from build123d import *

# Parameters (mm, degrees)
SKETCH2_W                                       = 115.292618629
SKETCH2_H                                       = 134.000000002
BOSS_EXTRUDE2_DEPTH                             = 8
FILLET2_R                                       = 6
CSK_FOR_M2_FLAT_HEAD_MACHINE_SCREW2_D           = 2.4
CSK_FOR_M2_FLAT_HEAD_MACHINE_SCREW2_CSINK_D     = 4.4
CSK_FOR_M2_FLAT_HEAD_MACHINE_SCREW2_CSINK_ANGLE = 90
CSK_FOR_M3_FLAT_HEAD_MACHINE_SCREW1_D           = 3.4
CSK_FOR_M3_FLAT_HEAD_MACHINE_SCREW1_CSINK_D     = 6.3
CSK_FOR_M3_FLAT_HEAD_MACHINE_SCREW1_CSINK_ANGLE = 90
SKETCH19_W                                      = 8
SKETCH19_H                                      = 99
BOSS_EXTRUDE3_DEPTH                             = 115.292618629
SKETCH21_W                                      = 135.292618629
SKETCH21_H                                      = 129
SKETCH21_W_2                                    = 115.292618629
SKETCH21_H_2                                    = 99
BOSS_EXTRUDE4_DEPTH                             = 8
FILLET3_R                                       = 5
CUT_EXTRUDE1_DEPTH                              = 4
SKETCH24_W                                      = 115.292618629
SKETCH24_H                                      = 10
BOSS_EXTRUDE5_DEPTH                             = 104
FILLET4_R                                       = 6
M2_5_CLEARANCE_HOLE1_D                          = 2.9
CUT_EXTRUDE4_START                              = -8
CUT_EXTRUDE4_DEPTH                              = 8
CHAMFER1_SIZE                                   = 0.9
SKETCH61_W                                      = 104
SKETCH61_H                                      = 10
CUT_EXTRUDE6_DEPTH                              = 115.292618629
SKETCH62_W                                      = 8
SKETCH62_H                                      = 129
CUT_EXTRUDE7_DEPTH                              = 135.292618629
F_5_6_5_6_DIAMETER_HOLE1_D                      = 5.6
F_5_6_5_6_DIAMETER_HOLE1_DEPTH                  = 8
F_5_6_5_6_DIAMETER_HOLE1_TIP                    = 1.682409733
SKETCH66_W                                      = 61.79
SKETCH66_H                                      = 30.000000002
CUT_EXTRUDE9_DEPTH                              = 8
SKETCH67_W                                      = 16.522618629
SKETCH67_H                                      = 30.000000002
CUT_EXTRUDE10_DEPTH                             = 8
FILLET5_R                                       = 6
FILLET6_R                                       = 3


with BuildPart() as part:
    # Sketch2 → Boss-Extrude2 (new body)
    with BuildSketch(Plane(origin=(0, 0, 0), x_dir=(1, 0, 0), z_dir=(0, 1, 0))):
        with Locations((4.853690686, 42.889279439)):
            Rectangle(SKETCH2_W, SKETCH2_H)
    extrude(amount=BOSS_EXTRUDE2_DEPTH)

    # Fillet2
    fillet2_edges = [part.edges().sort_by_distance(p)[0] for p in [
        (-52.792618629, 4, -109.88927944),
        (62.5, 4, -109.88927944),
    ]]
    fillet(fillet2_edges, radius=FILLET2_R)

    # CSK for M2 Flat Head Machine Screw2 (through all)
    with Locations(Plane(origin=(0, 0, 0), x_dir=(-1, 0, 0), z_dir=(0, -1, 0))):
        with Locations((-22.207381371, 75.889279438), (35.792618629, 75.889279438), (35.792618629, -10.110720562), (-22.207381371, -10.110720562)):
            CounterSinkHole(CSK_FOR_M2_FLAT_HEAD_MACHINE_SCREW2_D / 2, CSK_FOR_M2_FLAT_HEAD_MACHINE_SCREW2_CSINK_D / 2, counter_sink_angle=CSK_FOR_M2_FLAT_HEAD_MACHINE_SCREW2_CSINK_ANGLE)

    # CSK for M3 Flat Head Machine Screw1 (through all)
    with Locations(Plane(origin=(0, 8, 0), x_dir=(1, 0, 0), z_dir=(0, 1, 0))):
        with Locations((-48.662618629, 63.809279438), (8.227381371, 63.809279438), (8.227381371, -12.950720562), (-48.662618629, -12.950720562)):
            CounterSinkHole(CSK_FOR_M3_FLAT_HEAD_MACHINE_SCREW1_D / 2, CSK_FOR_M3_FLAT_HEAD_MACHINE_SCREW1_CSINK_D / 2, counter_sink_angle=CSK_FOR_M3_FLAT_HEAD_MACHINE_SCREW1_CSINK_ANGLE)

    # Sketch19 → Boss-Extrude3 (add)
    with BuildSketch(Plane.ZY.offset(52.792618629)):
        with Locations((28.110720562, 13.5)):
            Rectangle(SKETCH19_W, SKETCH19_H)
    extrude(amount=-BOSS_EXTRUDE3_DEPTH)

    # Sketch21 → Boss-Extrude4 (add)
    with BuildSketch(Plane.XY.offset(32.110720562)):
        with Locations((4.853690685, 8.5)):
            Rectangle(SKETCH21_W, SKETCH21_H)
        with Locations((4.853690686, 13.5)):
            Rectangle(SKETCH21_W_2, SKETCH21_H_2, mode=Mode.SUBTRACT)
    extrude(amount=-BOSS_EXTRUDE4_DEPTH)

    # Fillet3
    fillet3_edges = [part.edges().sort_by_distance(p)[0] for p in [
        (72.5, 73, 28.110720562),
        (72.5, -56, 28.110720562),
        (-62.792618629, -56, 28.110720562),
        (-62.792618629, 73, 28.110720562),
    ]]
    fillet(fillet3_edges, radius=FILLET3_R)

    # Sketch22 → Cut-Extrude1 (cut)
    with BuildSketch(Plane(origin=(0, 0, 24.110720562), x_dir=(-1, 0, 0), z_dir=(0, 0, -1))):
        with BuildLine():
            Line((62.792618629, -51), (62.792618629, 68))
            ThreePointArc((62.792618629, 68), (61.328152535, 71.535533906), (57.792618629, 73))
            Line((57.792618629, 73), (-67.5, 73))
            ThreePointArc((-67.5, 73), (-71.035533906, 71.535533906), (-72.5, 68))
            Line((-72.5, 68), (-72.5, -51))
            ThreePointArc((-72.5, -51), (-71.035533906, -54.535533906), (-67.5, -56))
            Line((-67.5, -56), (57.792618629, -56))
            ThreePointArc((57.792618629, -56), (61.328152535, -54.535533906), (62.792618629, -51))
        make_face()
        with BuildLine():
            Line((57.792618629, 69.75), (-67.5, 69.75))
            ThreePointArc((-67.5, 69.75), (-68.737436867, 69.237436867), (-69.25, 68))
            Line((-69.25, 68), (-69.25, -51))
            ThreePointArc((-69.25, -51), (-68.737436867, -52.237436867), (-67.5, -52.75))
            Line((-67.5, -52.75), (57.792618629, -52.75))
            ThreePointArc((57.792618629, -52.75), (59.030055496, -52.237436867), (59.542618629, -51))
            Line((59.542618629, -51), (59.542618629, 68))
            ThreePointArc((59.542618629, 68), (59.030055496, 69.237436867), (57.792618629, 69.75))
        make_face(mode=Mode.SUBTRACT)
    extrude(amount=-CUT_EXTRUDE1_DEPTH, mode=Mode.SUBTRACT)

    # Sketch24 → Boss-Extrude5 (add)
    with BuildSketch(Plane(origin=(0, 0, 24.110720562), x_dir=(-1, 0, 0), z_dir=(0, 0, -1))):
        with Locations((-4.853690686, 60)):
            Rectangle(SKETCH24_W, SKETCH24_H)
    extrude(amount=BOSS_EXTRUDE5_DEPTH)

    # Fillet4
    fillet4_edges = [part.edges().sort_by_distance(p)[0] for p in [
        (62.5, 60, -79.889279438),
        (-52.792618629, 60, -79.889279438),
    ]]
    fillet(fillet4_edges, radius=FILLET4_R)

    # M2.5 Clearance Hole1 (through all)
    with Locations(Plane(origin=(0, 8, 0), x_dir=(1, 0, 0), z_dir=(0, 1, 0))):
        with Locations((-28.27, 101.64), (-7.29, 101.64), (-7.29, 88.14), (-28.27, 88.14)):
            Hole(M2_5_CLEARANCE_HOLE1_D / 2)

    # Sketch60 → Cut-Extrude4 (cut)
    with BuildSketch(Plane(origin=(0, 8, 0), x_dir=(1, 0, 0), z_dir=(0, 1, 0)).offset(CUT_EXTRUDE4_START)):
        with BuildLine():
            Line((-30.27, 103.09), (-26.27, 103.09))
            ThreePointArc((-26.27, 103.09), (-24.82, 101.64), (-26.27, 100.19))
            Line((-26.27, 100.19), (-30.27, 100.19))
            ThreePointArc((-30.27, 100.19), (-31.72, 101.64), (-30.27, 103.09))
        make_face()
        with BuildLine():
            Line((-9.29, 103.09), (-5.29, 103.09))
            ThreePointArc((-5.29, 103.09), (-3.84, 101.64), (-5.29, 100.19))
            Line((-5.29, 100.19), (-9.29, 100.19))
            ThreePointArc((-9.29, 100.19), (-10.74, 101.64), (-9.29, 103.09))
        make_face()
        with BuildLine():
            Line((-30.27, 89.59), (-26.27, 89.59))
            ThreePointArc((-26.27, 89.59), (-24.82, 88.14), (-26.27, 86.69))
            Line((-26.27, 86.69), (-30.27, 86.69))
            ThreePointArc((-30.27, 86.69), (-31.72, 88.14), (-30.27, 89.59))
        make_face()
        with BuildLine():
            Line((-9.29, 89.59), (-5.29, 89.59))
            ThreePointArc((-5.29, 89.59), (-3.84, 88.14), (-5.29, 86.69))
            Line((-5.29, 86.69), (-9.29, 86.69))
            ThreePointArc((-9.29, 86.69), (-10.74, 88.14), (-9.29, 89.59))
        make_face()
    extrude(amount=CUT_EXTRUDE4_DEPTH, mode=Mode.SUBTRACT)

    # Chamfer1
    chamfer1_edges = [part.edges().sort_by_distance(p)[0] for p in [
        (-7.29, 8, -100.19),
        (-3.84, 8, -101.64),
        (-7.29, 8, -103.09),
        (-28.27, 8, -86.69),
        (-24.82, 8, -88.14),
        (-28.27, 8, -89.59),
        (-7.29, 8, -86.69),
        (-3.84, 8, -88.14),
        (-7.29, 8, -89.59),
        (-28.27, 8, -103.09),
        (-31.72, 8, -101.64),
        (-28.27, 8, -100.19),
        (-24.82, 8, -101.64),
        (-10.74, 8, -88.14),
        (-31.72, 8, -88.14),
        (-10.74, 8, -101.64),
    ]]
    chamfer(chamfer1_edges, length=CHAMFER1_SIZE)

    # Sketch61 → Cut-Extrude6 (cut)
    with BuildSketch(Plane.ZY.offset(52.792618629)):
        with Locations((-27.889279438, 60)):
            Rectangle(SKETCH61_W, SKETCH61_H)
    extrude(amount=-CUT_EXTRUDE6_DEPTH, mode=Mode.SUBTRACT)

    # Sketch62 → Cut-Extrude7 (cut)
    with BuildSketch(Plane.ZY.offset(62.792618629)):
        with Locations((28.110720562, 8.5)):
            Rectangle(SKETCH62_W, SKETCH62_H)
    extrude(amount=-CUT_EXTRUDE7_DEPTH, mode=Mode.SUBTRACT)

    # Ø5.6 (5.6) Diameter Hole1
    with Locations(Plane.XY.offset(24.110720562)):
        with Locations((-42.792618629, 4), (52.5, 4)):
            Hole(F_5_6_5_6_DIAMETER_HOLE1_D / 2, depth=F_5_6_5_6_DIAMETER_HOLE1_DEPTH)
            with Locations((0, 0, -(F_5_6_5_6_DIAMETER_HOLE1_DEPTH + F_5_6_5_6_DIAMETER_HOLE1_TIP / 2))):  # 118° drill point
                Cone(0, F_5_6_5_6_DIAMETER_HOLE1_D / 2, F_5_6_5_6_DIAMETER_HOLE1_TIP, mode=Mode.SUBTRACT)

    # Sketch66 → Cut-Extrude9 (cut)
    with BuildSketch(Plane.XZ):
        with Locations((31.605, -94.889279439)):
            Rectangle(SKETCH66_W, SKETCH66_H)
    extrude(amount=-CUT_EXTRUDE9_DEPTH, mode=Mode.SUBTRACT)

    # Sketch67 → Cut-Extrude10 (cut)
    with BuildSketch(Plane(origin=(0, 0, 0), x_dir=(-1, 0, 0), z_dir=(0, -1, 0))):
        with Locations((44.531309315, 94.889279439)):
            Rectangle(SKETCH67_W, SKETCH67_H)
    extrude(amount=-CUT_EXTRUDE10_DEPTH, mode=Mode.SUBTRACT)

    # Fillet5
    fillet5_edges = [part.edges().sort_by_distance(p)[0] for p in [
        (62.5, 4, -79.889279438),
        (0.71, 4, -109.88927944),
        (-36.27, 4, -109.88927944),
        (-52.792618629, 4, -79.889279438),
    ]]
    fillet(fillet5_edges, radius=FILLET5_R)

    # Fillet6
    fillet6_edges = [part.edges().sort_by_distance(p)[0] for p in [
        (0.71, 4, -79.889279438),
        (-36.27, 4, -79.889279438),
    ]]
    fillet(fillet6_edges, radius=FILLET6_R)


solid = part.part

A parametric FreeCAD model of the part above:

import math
import FreeCAD as App
import Part
import Sketcher

V = App.Vector


def edges_at(feature, points):
    """Names of the edges that pass closest to the given points."""
    edges = feature.Shape.Edges
    near = lambda p: min(range(len(edges)), key=lambda i: edges[i].distToShape(Part.Vertex(*p))[0])
    return sorted({f"Edge{near(p) + 1}" for p in points})

doc = App.newDocument("Part")
params = doc.addObject("Spreadsheet::Sheet", "Params")
for row, (alias, value) in enumerate([
    ("sketch1_height", "134 mm"),
    ("pad1_length", "8 mm"),
    ("fillet_radius", "6 mm"),
    ("sketch2_diameter", "2.4 mm"),
    ("hole_diameter", "2.4 mm"),
    ("hole_csink_diameter", "4.4 mm"),
    ("sketch3_diameter", "3.4 mm"),
    ("hole2_diameter", "3.4 mm"),
    ("hole2_csink_diameter", "6.3 mm"),
    ("sketch4_width", "99 mm"),
    ("sketch4_height", "8 mm"),
    ("pad2_length", "115.292619 mm"),
    ("sketch5_height", "129 mm"),
    ("sketch5_height2", "99 mm"),
    ("pad3_length", "8 mm"),
    ("fillet2_radius", "5 mm"),
    ("sketch6_radius", "5 mm"),
    ("sketch6_height", "119 mm"),
    ("sketch6_radius2", "1.75 mm"),
    ("pocket1_length", "4 mm"),
    ("sketch7_height", "10 mm"),
    ("pad4_length", "104 mm"),
    ("fillet3_radius", "6 mm"),
    ("sketch8_diameter", "2.9 mm"),
    ("hole3_diameter", "2.9 mm"),
    ("sketch9_width", "4 mm"),
    ("sketch9_radius", "1.45 mm"),
    ("pocket2_length", "8 mm"),
    ("chamfer_size", "0.9 mm"),
    ("sketch10_width", "10 mm"),
    ("sketch10_height", "104 mm"),
    ("pocket3_length", "115.292619 mm"),
    ("sketch11_width", "129 mm"),
    ("sketch11_height", "8 mm"),
    ("pocket4_length", "135.292619 mm"),
    ("sketch12_diameter", "5.6 mm"),
    ("hole4_diameter", "5.6 mm"),
    ("hole4_depth", "8 mm"),
    ("sketch13_height", "30 mm"),
    ("sketch13_width", "61.79 mm"),
    ("pocket5_length", "8 mm"),
    ("sketch14_height", "30 mm"),
    ("pocket6_length", "8 mm"),
    ("fillet4_radius", "6 mm"),
    ("fillet5_radius", "3 mm"),
], start=1):
    params.set(f"A{row}", alias)
    params.set(f"B{row}", "=" + value)
    params.setAlias(f"B{row}", alias)

body = doc.addObject("PartDesign::Body", "Body")

# Sketch on XZ plane
sketch1 = doc.addObject("Sketcher::SketchObject", "Sketch")
body.addObject(sketch1)
sketch1.AttachmentSupport = (doc.XZ_Plane, [""])
sketch1.MapMode = "FlatFace"
sketch1.addGeometry(Part.LineSegment(V(-52.792619, -109.889279, 0), V(-52.792619, 24.110721, 0)), False)
sketch1.addGeometry(Part.LineSegment(V(-52.792619, 24.110721, 0), V(62.5, 24.110721, 0)), False)
sketch1.addGeometry(Part.LineSegment(V(62.5, 24.110721, 0), V(62.5, -109.889279, 0)), False)
sketch1.addGeometry(Part.LineSegment(V(62.5, -109.889279, 0), V(-52.792619, -109.889279, 0)), False)
sketch1.addConstraint(Sketcher.Constraint("Coincident", 0, 2, 1, 1))
sketch1.addConstraint(Sketcher.Constraint("Coincident", 1, 2, 2, 1))
sketch1.addConstraint(Sketcher.Constraint("Coincident", 2, 2, 3, 1))
sketch1.addConstraint(Sketcher.Constraint("Coincident", 3, 2, 0, 1))
sketch1.addConstraint(Sketcher.Constraint("Vertical", 0))
sketch1.addConstraint(Sketcher.Constraint("Horizontal", 1))
sketch1.addConstraint(Sketcher.Constraint("Vertical", 2))
sketch1.addConstraint(Sketcher.Constraint("Horizontal", 3))
sketch1.addConstraint(Sketcher.Constraint("DistanceY", 0, 1, 0, 2, 134.0))
sketch1.addConstraint(Sketcher.Constraint("DistanceX", -1, 1, 1, 2, 62.5))
sketch1.addConstraint(Sketcher.Constraint("DistanceX", 1, 1, 1, 2, 115.292619))
sketch1.addConstraint(Sketcher.Constraint("DistanceY", -1, 1, 0, 2, 24.110721))
sketch1.setExpression("Constraints[8]", "Params.sketch1_height")
pad1 = doc.addObject("PartDesign::Pad", "Pad")
body.addObject(pad1)
pad1.Profile = sketch1
pad1.setExpression("Length", "Params.pad1_length")
pad1.Reversed = True
doc.recompute()

fillet = doc.addObject("PartDesign::Fillet", "Fillet")
body.addObject(fillet)
fillet.Base = (pad1, edges_at(pad1, [(-52.793, 4, -109.889), (62.5, 4, -109.889)]))
fillet.setExpression("Radius", "Params.fillet_radius")

# Sketch on XZ plane
sketch2 = doc.addObject("Sketcher::SketchObject", "Sketch001")
body.addObject(sketch2)
sketch2.AttachmentSupport = (doc.XZ_Plane, [""])
sketch2.MapMode = "FlatFace"
sketch2.addGeometry(Part.Circle(V(22.207381, -75.889279, 0), V(0, 0, 1), 1.2), False)
sketch2.addGeometry(Part.Circle(V(-35.792619, -75.889279, 0), V(0, 0, 1), 1.2), False)
sketch2.addGeometry(Part.Circle(V(-35.792619, 10.110721, 0), V(0, 0, 1), 1.2), False)
sketch2.addGeometry(Part.Circle(V(22.207381, 10.110721, 0), V(0, 0, 1), 1.2), False)
sketch2.addConstraint(Sketcher.Constraint("Equal", 0, 1))
sketch2.addConstraint(Sketcher.Constraint("Equal", 1, 2))
sketch2.addConstraint(Sketcher.Constraint("Equal", 2, 3))
sketch2.addConstraint(Sketcher.Constraint("Horizontal", 0, 3, 1, 3))
sketch2.addConstraint(Sketcher.Constraint("Horizontal", 2, 3, 3, 3))
sketch2.addConstraint(Sketcher.Constraint("Vertical", 1, 3, 2, 3))
sketch2.addConstraint(Sketcher.Constraint("Vertical", 0, 3, 3, 3))
sketch2.addConstraint(Sketcher.Constraint("Diameter", 0, 2.4))
sketch2.addConstraint(Sketcher.Constraint("DistanceX", 1, 3, 0, 3, 58.0))
sketch2.addConstraint(Sketcher.Constraint("DistanceY", 1, 3, 2, 3, 86.0))
sketch2.addConstraint(Sketcher.Constraint("DistanceX", -1, 1, 0, 3, 22.207381))
sketch2.addConstraint(Sketcher.Constraint("DistanceY", 0, 3, -1, 1, 75.889279))
sketch2.setExpression("Constraints[7]", "Params.sketch2_diameter")
doc.recompute()
hole = doc.addObject("PartDesign::Hole", "Hole")
body.addObject(hole)
hole.Profile = sketch2
hole.ThreadType = "None"
hole.setExpression("Diameter", "Params.hole_diameter")
hole.DepthType = "ThroughAll"
hole.HoleCutType = "Countersink"
hole.setExpression("HoleCutDiameter", "Params.hole_csink_diameter")
hole.HoleCutCountersinkAngle = 90

# Sketch on XZ plane
sketch3 = doc.addObject("Sketcher::SketchObject", "Sketch002")
body.addObject(sketch3)
sketch3.AttachmentSupport = (doc.XZ_Plane, [""])
sketch3.MapMode = "FlatFace"
sketch3.AttachmentOffset = App.Placement(V(0, 0, -8), App.Rotation())
sketch3.addGeometry(Part.Circle(V(-48.662619, -63.809279, 0), V(0, 0, 1), 1.7), False)
sketch3.addGeometry(Part.Circle(V(8.227381, -63.809279, 0), V(0, 0, 1), 1.7), False)
sketch3.addGeometry(Part.Circle(V(8.227381, 12.950721, 0), V(0, 0, 1), 1.7), False)
sketch3.addGeometry(Part.Circle(V(-48.662619, 12.950721, 0), V(0, 0, 1), 1.7), False)
sketch3.addConstraint(Sketcher.Constraint("Equal", 0, 1))
sketch3.addConstraint(Sketcher.Constraint("Equal", 1, 2))
sketch3.addConstraint(Sketcher.Constraint("Equal", 2, 3))
sketch3.addConstraint(Sketcher.Constraint("Horizontal", 0, 3, 1, 3))
sketch3.addConstraint(Sketcher.Constraint("Horizontal", 2, 3, 3, 3))
sketch3.addConstraint(Sketcher.Constraint("Vertical", 1, 3, 2, 3))
sketch3.addConstraint(Sketcher.Constraint("Vertical", 0, 3, 3, 3))
sketch3.addConstraint(Sketcher.Constraint("Diameter", 0, 3.4))
sketch3.addConstraint(Sketcher.Constraint("DistanceX", 0, 3, 1, 3, 56.89))
sketch3.addConstraint(Sketcher.Constraint("DistanceY", 1, 3, 2, 3, 76.76))
sketch3.addConstraint(Sketcher.Constraint("DistanceX", 0, 3, -1, 1, 48.662619))
sketch3.addConstraint(Sketcher.Constraint("DistanceY", 0, 3, -1, 1, 63.809279))
sketch3.setExpression("Constraints[7]", "Params.sketch3_diameter")
doc.recompute()
hole2 = doc.addObject("PartDesign::Hole", "Hole001")
body.addObject(hole2)
hole2.Profile = sketch3
hole2.ThreadType = "None"
hole2.setExpression("Diameter", "Params.hole2_diameter")
hole2.DepthType = "ThroughAll"
hole2.HoleCutType = "Countersink"
hole2.setExpression("HoleCutDiameter", "Params.hole2_csink_diameter")
hole2.HoleCutCountersinkAngle = 90
hole2.Reversed = True

# Sketch on YZ plane
sketch4 = doc.addObject("Sketcher::SketchObject", "Sketch003")
body.addObject(sketch4)
sketch4.AttachmentSupport = (doc.YZ_Plane, [""])
sketch4.MapMode = "FlatFace"
sketch4.AttachmentOffset = App.Placement(V(0, 0, -52.792619), App.Rotation())
sketch4.addGeometry(Part.LineSegment(V(63, 24.110721, 0), V(-36, 24.110721, 0)), False)
sketch4.addGeometry(Part.LineSegment(V(-36, 24.110721, 0), V(-36, 32.110721, 0)), False)
sketch4.addGeometry(Part.LineSegment(V(-36, 32.110721, 0), V(63, 32.110721, 0)), False)
sketch4.addGeometry(Part.LineSegment(V(63, 32.110721, 0), V(63, 24.110721, 0)), False)
sketch4.addConstraint(Sketcher.Constraint("Coincident", 0, 2, 1, 1))
sketch4.addConstraint(Sketcher.Constraint("Coincident", 1, 2, 2, 1))
sketch4.addConstraint(Sketcher.Constraint("Coincident", 2, 2, 3, 1))
sketch4.addConstraint(Sketcher.Constraint("Coincident", 3, 2, 0, 1))
sketch4.addConstraint(Sketcher.Constraint("Horizontal", 0))
sketch4.addConstraint(Sketcher.Constraint("Vertical", 1))
sketch4.addConstraint(Sketcher.Constraint("Horizontal", 2))
sketch4.addConstraint(Sketcher.Constraint("Vertical", 3))
sketch4.addConstraint(Sketcher.Constraint("DistanceX", 0, 2, 0, 1, 99.0))
sketch4.addConstraint(Sketcher.Constraint("DistanceY", 1, 1, 1, 2, 8.0))
sketch4.addConstraint(Sketcher.Constraint("DistanceX", 0, 2, -1, 1, 36.0))
sketch4.addConstraint(Sketcher.Constraint("DistanceY", -1, 1, 0, 2, 24.110721))
sketch4.setExpression("Constraints[8]", "Params.sketch4_width")
sketch4.setExpression("Constraints[9]", "Params.sketch4_height")
pad2 = doc.addObject("PartDesign::Pad", "Pad001")
body.addObject(pad2)
pad2.Profile = sketch4
pad2.setExpression("Length", "Params.pad2_length")

# Sketch on XY plane
sketch5 = doc.addObject("Sketcher::SketchObject", "Sketch004")
body.addObject(sketch5)
sketch5.AttachmentSupport = (doc.XY_Plane, [""])
sketch5.MapMode = "FlatFace"
sketch5.AttachmentOffset = App.Placement(V(0, 0, 32.110721), App.Rotation())
sketch5.addGeometry(Part.LineSegment(V(-62.792619, 73, 0), V(-62.792619, -56, 0)), False)
sketch5.addGeometry(Part.LineSegment(V(-62.792619, -56, 0), V(72.5, -56, 0)), False)
sketch5.addGeometry(Part.LineSegment(V(72.5, -56, 0), V(72.5, 73, 0)), False)
sketch5.addGeometry(Part.LineSegment(V(72.5, 73, 0), V(-62.792619, 73, 0)), False)
sketch5.addGeometry(Part.LineSegment(V(62.5, -36, 0), V(-52.792619, -36, 0)), False)
sketch5.addGeometry(Part.LineSegment(V(-52.792619, -36, 0), V(-52.792619, 63, 0)), False)
sketch5.addGeometry(Part.LineSegment(V(-52.792619, 63, 0), V(62.5, 63, 0)), False)
sketch5.addGeometry(Part.LineSegment(V(62.5, 63, 0), V(62.5, -36, 0)), False)
sketch5.addConstraint(Sketcher.Constraint("Coincident", 0, 2, 1, 1))
sketch5.addConstraint(Sketcher.Constraint("Coincident", 1, 2, 2, 1))
sketch5.addConstraint(Sketcher.Constraint("Coincident", 2, 2, 3, 1))
sketch5.addConstraint(Sketcher.Constraint("Coincident", 3, 2, 0, 1))
sketch5.addConstraint(Sketcher.Constraint("Coincident", 4, 2, 5, 1))
sketch5.addConstraint(Sketcher.Constraint("Coincident", 5, 2, 6, 1))
sketch5.addConstraint(Sketcher.Constraint("Coincident", 6, 2, 7, 1))
sketch5.addConstraint(Sketcher.Constraint("Coincident", 7, 2, 4, 1))
sketch5.addConstraint(Sketcher.Constraint("Vertical", 0))
sketch5.addConstraint(Sketcher.Constraint("Horizontal", 1))
sketch5.addConstraint(Sketcher.Constraint("Vertical", 2))
sketch5.addConstraint(Sketcher.Constraint("Horizontal", 3))
sketch5.addConstraint(Sketcher.Constraint("Horizontal", 4))
sketch5.addConstraint(Sketcher.Constraint("Vertical", 5))
sketch5.addConstraint(Sketcher.Constraint("Horizontal", 6))
sketch5.addConstraint(Sketcher.Constraint("Vertical", 7))
sketch5.addConstraint(Sketcher.Constraint("DistanceY", 0, 2, 0, 1, 129.0))
sketch5.addConstraint(Sketcher.Constraint("DistanceY", 5, 1, 5, 2, 99.0))
sketch5.addConstraint(Sketcher.Constraint("DistanceY", 0, 2, -1, 1, 56.0))
sketch5.addConstraint(Sketcher.Constraint("DistanceY", 4, 2, -1, 1, 36.0))
sketch5.addConstraint(Sketcher.Constraint("DistanceX", 0, 2, 4, 2, 10.0))
sketch5.addConstraint(Sketcher.Constraint("DistanceX", 6, 2, 2, 2, 10.0))
sketch5.addConstraint(Sketcher.Constraint("DistanceX", -1, 1, 1, 2, 72.5))
sketch5.addConstraint(Sketcher.Constraint("DistanceX", 1, 1, 1, 2, 135.292619))
sketch5.setExpression("Constraints[16]", "Params.sketch5_height")
sketch5.setExpression("Constraints[17]", "Params.sketch5_height2")
pad3 = doc.addObject("PartDesign::Pad", "Pad002")
body.addObject(pad3)
pad3.Profile = sketch5
pad3.setExpression("Length", "Params.pad3_length")
pad3.Reversed = True
doc.recompute()

fillet2 = doc.addObject("PartDesign::Fillet", "Fillet001")
body.addObject(fillet2)
fillet2.Base = (pad3, edges_at(pad3, [
    (72.5, 73, 28.111),
    (72.5, -56, 28.111),
    (-62.793, -56, 28.111),
    (-62.793, 73, 28.111),
]))
fillet2.setExpression("Radius", "Params.fillet2_radius")

# Sketch on XY plane
sketch6 = doc.addObject("Sketcher::SketchObject", "Sketch005")
body.addObject(sketch6)
sketch6.AttachmentSupport = (doc.XY_Plane, [""])
sketch6.MapMode = "FlatFace"
sketch6.AttachmentOffset = App.Placement(V(0, 0, 24.110721), App.Rotation())
sketch6.addGeometry(Part.LineSegment(V(-62.792619, -51, 0), V(-62.792619, 68, 0)), False)
sketch6.addGeometry(Part.ArcOfCircle(Part.Circle(V(-57.792619, 68, 0), V(0, 0, 1), 5), math.radians(90), math.radians(180)), False)
sketch6.addGeometry(Part.LineSegment(V(-57.792619, 73, 0), V(67.5, 73, 0)), False)
sketch6.addGeometry(Part.ArcOfCircle(Part.Circle(V(67.5, 68, 0), V(0, 0, 1), 5), math.radians(0), math.radians(90)), False)
sketch6.addGeometry(Part.LineSegment(V(72.5, 68, 0), V(72.5, -51, 0)), False)
sketch6.addGeometry(Part.ArcOfCircle(Part.Circle(V(67.5, -51, 0), V(0, 0, 1), 5), math.radians(-90), math.radians(0)), False)
sketch6.addGeometry(Part.LineSegment(V(67.5, -56, 0), V(-57.792619, -56, 0)), False)
sketch6.addGeometry(Part.ArcOfCircle(Part.Circle(V(-57.792619, -51, 0), V(0, 0, 1), 5), math.radians(180), math.radians(270)), False)
sketch6.addGeometry(Part.LineSegment(V(67.5, 69.75, 0), V(-57.792619, 69.75, 0)), False)
sketch6.addGeometry(Part.ArcOfCircle(Part.Circle(V(-57.792619, 68, 0), V(0, 0, 1), 1.75), math.radians(90), math.radians(180)), False)
sketch6.addGeometry(Part.LineSegment(V(-59.542619, 68, 0), V(-59.542619, -51, 0)), False)
sketch6.addGeometry(Part.ArcOfCircle(Part.Circle(V(-57.792619, -51, 0), V(0, 0, 1), 1.75), math.radians(180), math.radians(270)), False)
sketch6.addGeometry(Part.LineSegment(V(-57.792619, -52.75, 0), V(67.5, -52.75, 0)), False)
sketch6.addGeometry(Part.ArcOfCircle(Part.Circle(V(67.5, -51, 0), V(0, 0, 1), 1.75), math.radians(-90), math.radians(0)), False)
sketch6.addGeometry(Part.LineSegment(V(69.25, -51, 0), V(69.25, 68, 0)), False)
sketch6.addGeometry(Part.ArcOfCircle(Part.Circle(V(67.5, 68, 0), V(0, 0, 1), 1.75), math.radians(0), math.radians(90)), False)
sketch6.addConstraint(Sketcher.Constraint("Tangent", 0, 2, 1, 2))
sketch6.addConstraint(Sketcher.Constraint("Tangent", 1, 1, 2, 1))
sketch6.addConstraint(Sketcher.Constraint("Tangent", 2, 2, 3, 2))
sketch6.addConstraint(Sketcher.Constraint("Tangent", 3, 1, 4, 1))
sketch6.addConstraint(Sketcher.Constraint("Tangent", 4, 2, 5, 2))
sketch6.addConstraint(Sketcher.Constraint("Tangent", 5, 1, 6, 1))
sketch6.addConstraint(Sketcher.Constraint("Tangent", 6, 2, 7, 2))
sketch6.addConstraint(Sketcher.Constraint("Tangent", 7, 1, 0, 1))
sketch6.addConstraint(Sketcher.Constraint("Tangent", 8, 2, 9, 1))
sketch6.addConstraint(Sketcher.Constraint("Tangent", 9, 2, 10, 1))
sketch6.addConstraint(Sketcher.Constraint("Tangent", 10, 2, 11, 1))
sketch6.addConstraint(Sketcher.Constraint("Tangent", 11, 2, 12, 1))
sketch6.addConstraint(Sketcher.Constraint("Tangent", 12, 2, 13, 1))
sketch6.addConstraint(Sketcher.Constraint("Tangent", 13, 2, 14, 1))
sketch6.addConstraint(Sketcher.Constraint("Tangent", 14, 2, 15, 1))
sketch6.addConstraint(Sketcher.Constraint("Tangent", 15, 2, 8, 1))
sketch6.addConstraint(Sketcher.Constraint("Vertical", 0))
sketch6.addConstraint(Sketcher.Constraint("Horizontal", 2))
sketch6.addConstraint(Sketcher.Constraint("Vertical", 4))
sketch6.addConstraint(Sketcher.Constraint("Horizontal", 6))
sketch6.addConstraint(Sketcher.Constraint("Horizontal", 8))
sketch6.addConstraint(Sketcher.Constraint("Vertical", 10))
sketch6.addConstraint(Sketcher.Constraint("Horizontal", 12))
sketch6.addConstraint(Sketcher.Constraint("Vertical", 14))
sketch6.addConstraint(Sketcher.Constraint("Coincident", 9, 3, 1, 3))
sketch6.addConstraint(Sketcher.Constraint("Coincident", 11, 3, 7, 3))
sketch6.addConstraint(Sketcher.Constraint("Coincident", 13, 3, 5, 3))
sketch6.addConstraint(Sketcher.Constraint("Equal", 1, 3))
sketch6.addConstraint(Sketcher.Constraint("Equal", 3, 5))
sketch6.addConstraint(Sketcher.Constraint("Equal", 5, 7))
sketch6.addConstraint(Sketcher.Constraint("Equal", 13, 15))
sketch6.addConstraint(Sketcher.Constraint("Radius", 1, 5.0))
sketch6.addConstraint(Sketcher.Constraint("DistanceY", 0, 1, 0, 2, 119.0))
sketch6.addConstraint(Sketcher.Constraint("Radius", 9, 1.75))
sketch6.addConstraint(Sketcher.Constraint("DistanceY", -1, 1, 1, 3, 68.0))
sketch6.addConstraint(Sketcher.Constraint("DistanceX", -1, 1, 3, 3, 67.5))
sketch6.addConstraint(Sketcher.Constraint("DistanceX", 2, 1, 2, 2, 125.292619))
sketch6.setExpression("Constraints[31]", "Params.sketch6_radius")
sketch6.setExpression("Constraints[32]", "Params.sketch6_height")
sketch6.setExpression("Constraints[33]", "Params.sketch6_radius2")
pocket1 = doc.addObject("PartDesign::Pocket", "Pocket")
body.addObject(pocket1)
pocket1.Profile = sketch6
pocket1.setExpression("Length", "Params.pocket1_length")
pocket1.Reversed = True

# Sketch on XY plane
sketch7 = doc.addObject("Sketcher::SketchObject", "Sketch006")
body.addObject(sketch7)
sketch7.AttachmentSupport = (doc.XY_Plane, [""])
sketch7.MapMode = "FlatFace"
sketch7.AttachmentOffset = App.Placement(V(0, 0, 24.110721), App.Rotation())
sketch7.addGeometry(Part.LineSegment(V(62.5, 65, 0), V(62.5, 55, 0)), False)
sketch7.addGeometry(Part.LineSegment(V(62.5, 55, 0), V(-52.792619, 55, 0)), False)
sketch7.addGeometry(Part.LineSegment(V(-52.792619, 55, 0), V(-52.792619, 65, 0)), False)
sketch7.addGeometry(Part.LineSegment(V(-52.792619, 65, 0), V(62.5, 65, 0)), False)
sketch7.addConstraint(Sketcher.Constraint("Coincident", 0, 2, 1, 1))
sketch7.addConstraint(Sketcher.Constraint("Coincident", 1, 2, 2, 1))
sketch7.addConstraint(Sketcher.Constraint("Coincident", 2, 2, 3, 1))
sketch7.addConstraint(Sketcher.Constraint("Coincident", 3, 2, 0, 1))
sketch7.addConstraint(Sketcher.Constraint("Vertical", 0))
sketch7.addConstraint(Sketcher.Constraint("Horizontal", 1))
sketch7.addConstraint(Sketcher.Constraint("Vertical", 2))
sketch7.addConstraint(Sketcher.Constraint("Horizontal", 3))
sketch7.addConstraint(Sketcher.Constraint("DistanceY", 0, 2, 0, 1, 10.0))
sketch7.addConstraint(Sketcher.Constraint("DistanceY", -1, 1, 0, 2, 55.0))
sketch7.addConstraint(Sketcher.Constraint("DistanceX", -1, 1, 0, 2, 62.5))
sketch7.addConstraint(Sketcher.Constraint("DistanceX", 1, 2, 1, 1, 115.292619))
sketch7.setExpression("Constraints[8]", "Params.sketch7_height")
pad4 = doc.addObject("PartDesign::Pad", "Pad003")
body.addObject(pad4)
pad4.Profile = sketch7
pad4.setExpression("Length", "Params.pad4_length")
pad4.Reversed = True
doc.recompute()

fillet3 = doc.addObject("PartDesign::Fillet", "Fillet002")
body.addObject(fillet3)
fillet3.Base = (pad4, edges_at(pad4, [(62.5, 60, -79.889), (-52.793, 60, -79.889)]))
fillet3.setExpression("Radius", "Params.fillet3_radius")

# Sketch on XZ plane
sketch8 = doc.addObject("Sketcher::SketchObject", "Sketch007")
body.addObject(sketch8)
sketch8.AttachmentSupport = (doc.XZ_Plane, [""])
sketch8.MapMode = "FlatFace"
sketch8.AttachmentOffset = App.Placement(V(0, 0, -8), App.Rotation())
sketch8.addGeometry(Part.Circle(V(-28.27, -101.64, 0), V(0, 0, 1), 1.45), False)
sketch8.addGeometry(Part.Circle(V(-7.29, -101.64, 0), V(0, 0, 1), 1.45), False)
sketch8.addGeometry(Part.Circle(V(-7.29, -88.14, 0), V(0, 0, 1), 1.45), False)
sketch8.addGeometry(Part.Circle(V(-28.27, -88.14, 0), V(0, 0, 1), 1.45), False)
sketch8.addConstraint(Sketcher.Constraint("Equal", 0, 1))
sketch8.addConstraint(Sketcher.Constraint("Equal", 1, 2))
sketch8.addConstraint(Sketcher.Constraint("Equal", 2, 3))
sketch8.addConstraint(Sketcher.Constraint("Horizontal", 0, 3, 1, 3))
sketch8.addConstraint(Sketcher.Constraint("Horizontal", 2, 3, 3, 3))
sketch8.addConstraint(Sketcher.Constraint("Vertical", 1, 3, 2, 3))
sketch8.addConstraint(Sketcher.Constraint("Vertical", 0, 3, 3, 3))
sketch8.addConstraint(Sketcher.Constraint("Diameter", 0, 2.9))
sketch8.addConstraint(Sketcher.Constraint("DistanceY", 1, 3, 2, 3, 13.5))
sketch8.addConstraint(Sketcher.Constraint("DistanceX", 0, 3, -1, 1, 28.27))
sketch8.addConstraint(Sketcher.Constraint("DistanceY", 0, 3, -1, 1, 101.64))
sketch8.addConstraint(Sketcher.Constraint("DistanceX", 1, 3, -1, 1, 7.29))
sketch8.setExpression("Constraints[7]", "Params.sketch8_diameter")
doc.recompute()
hole3 = doc.addObject("PartDesign::Hole", "Hole002")
body.addObject(hole3)
hole3.Profile = sketch8
hole3.ThreadType = "None"
hole3.setExpression("Diameter", "Params.hole3_diameter")
hole3.DepthType = "ThroughAll"
hole3.Reversed = True

# Sketch on XZ plane
sketch9 = doc.addObject("Sketcher::SketchObject", "Sketch008")
body.addObject(sketch9)
sketch9.AttachmentSupport = (doc.XZ_Plane, [""])
sketch9.MapMode = "FlatFace"
sketch9.addGeometry(Part.LineSegment(V(-26.27, -103.09, 0), V(-30.27, -103.09, 0)), False)
sketch9.addGeometry(Part.ArcOfCircle(Part.Circle(V(-30.27, -101.64, 0), V(0, 0, 1), 1.45), math.radians(90), math.radians(270)), False)
sketch9.addGeometry(Part.LineSegment(V(-30.27, -100.19, 0), V(-26.27, -100.19, 0)), False)
sketch9.addGeometry(Part.ArcOfCircle(Part.Circle(V(-26.27, -101.64, 0), V(0, 0, 1), 1.45), math.radians(-90), math.radians(90)), False)
sketch9.addGeometry(Part.LineSegment(V(-5.29, -103.09, 0), V(-9.29, -103.09, 0)), False)
sketch9.addGeometry(Part.ArcOfCircle(Part.Circle(V(-9.29, -101.64, 0), V(0, 0, 1), 1.45), math.radians(90), math.radians(270)), False)
sketch9.addGeometry(Part.LineSegment(V(-9.29, -100.19, 0), V(-5.29, -100.19, 0)), False)
sketch9.addGeometry(Part.ArcOfCircle(Part.Circle(V(-5.29, -101.64, 0), V(0, 0, 1), 1.45), math.radians(-90), math.radians(90)), False)
sketch9.addGeometry(Part.LineSegment(V(-26.27, -89.59, 0), V(-30.27, -89.59, 0)), False)
sketch9.addGeometry(Part.ArcOfCircle(Part.Circle(V(-30.27, -88.14, 0), V(0, 0, 1), 1.45), math.radians(90), math.radians(270)), False)
sketch9.addGeometry(Part.LineSegment(V(-30.27, -86.69, 0), V(-26.27, -86.69, 0)), False)
sketch9.addGeometry(Part.ArcOfCircle(Part.Circle(V(-26.27, -88.14, 0), V(0, 0, 1), 1.45), math.radians(-90), math.radians(90)), False)
sketch9.addGeometry(Part.LineSegment(V(-5.29, -89.59, 0), V(-9.29, -89.59, 0)), False)
sketch9.addGeometry(Part.ArcOfCircle(Part.Circle(V(-9.29, -88.14, 0), V(0, 0, 1), 1.45), math.radians(90), math.radians(270)), False)
sketch9.addGeometry(Part.LineSegment(V(-9.29, -86.69, 0), V(-5.29, -86.69, 0)), False)
sketch9.addGeometry(Part.ArcOfCircle(Part.Circle(V(-5.29, -88.14, 0), V(0, 0, 1), 1.45), math.radians(-90), math.radians(90)), False)
sketch9.addConstraint(Sketcher.Constraint("Tangent", 0, 2, 1, 2))
sketch9.addConstraint(Sketcher.Constraint("Tangent", 1, 1, 2, 1))
sketch9.addConstraint(Sketcher.Constraint("Tangent", 2, 2, 3, 2))
sketch9.addConstraint(Sketcher.Constraint("Tangent", 3, 1, 0, 1))
sketch9.addConstraint(Sketcher.Constraint("Tangent", 4, 2, 5, 2))
sketch9.addConstraint(Sketcher.Constraint("Tangent", 5, 1, 6, 1))
sketch9.addConstraint(Sketcher.Constraint("Tangent", 6, 2, 7, 2))
sketch9.addConstraint(Sketcher.Constraint("Tangent", 7, 1, 4, 1))
sketch9.addConstraint(Sketcher.Constraint("Tangent", 8, 2, 9, 2))
sketch9.addConstraint(Sketcher.Constraint("Tangent", 9, 1, 10, 1))
sketch9.addConstraint(Sketcher.Constraint("Tangent", 10, 2, 11, 2))
sketch9.addConstraint(Sketcher.Constraint("Tangent", 11, 1, 8, 1))
sketch9.addConstraint(Sketcher.Constraint("Tangent", 12, 2, 13, 2))
sketch9.addConstraint(Sketcher.Constraint("Tangent", 13, 1, 14, 1))
sketch9.addConstraint(Sketcher.Constraint("Tangent", 14, 2, 15, 2))
sketch9.addConstraint(Sketcher.Constraint("Tangent", 15, 1, 12, 1))
sketch9.addConstraint(Sketcher.Constraint("Horizontal", 0))
sketch9.addConstraint(Sketcher.Constraint("Horizontal", 2))
sketch9.addConstraint(Sketcher.Constraint("Horizontal", 4))
sketch9.addConstraint(Sketcher.Constraint("Horizontal", 6))
sketch9.addConstraint(Sketcher.Constraint("Horizontal", 8))
sketch9.addConstraint(Sketcher.Constraint("Horizontal", 10))
sketch9.addConstraint(Sketcher.Constraint("Horizontal", 12))
sketch9.addConstraint(Sketcher.Constraint("Horizontal", 14))
sketch9.addConstraint(Sketcher.Constraint("Equal", 3, 5))
sketch9.addConstraint(Sketcher.Constraint("Equal", 7, 9))
sketch9.addConstraint(Sketcher.Constraint("Equal", 11, 13))
sketch9.addConstraint(Sketcher.Constraint("Horizontal", 3, 3, 5, 3))
sketch9.addConstraint(Sketcher.Constraint("Horizontal", 11, 3, 13, 3))
sketch9.addConstraint(Sketcher.Constraint("Vertical", 1, 3, 9, 3))
sketch9.addConstraint(Sketcher.Constraint("Vertical", 3, 3, 11, 3))
sketch9.addConstraint(Sketcher.Constraint("Vertical", 5, 3, 13, 3))
sketch9.addConstraint(Sketcher.Constraint("Vertical", 7, 3, 15, 3))
sketch9.addConstraint(Sketcher.Constraint("Equal", 2, 4))
sketch9.addConstraint(Sketcher.Constraint("DistanceX", 0, 2, 0, 1, 4.0))
sketch9.addConstraint(Sketcher.Constraint("Radius", 1, 1.45))
sketch9.addConstraint(Sketcher.Constraint("DistanceY", 1, 3, 9, 3, 13.5))
sketch9.addConstraint(Sketcher.Constraint("DistanceX", 1, 3, -1, 1, 30.27))
sketch9.addConstraint(Sketcher.Constraint("DistanceY", 1, 3, -1, 1, 101.64))
sketch9.addConstraint(Sketcher.Constraint("DistanceX", 5, 3, -1, 1, 9.29))
sketch9.setExpression("Constraints[34]", "Params.sketch9_width")
sketch9.setExpression("Constraints[35]", "Params.sketch9_radius")
pocket2 = doc.addObject("PartDesign::Pocket", "Pocket001")
body.addObject(pocket2)
pocket2.Profile = sketch9
pocket2.setExpression("Length", "Params.pocket2_length")
doc.recompute()

chamfer = doc.addObject("PartDesign::Chamfer", "Chamfer")
body.addObject(chamfer)
chamfer.Base = (pocket2, edges_at(pocket2, [
    (-7.29, 8, -100.19),
    (-3.84, 8, -101.64),
    (-7.29, 8, -103.09),
    (-28.27, 8, -86.69),
    (-24.82, 8, -88.14),
    (-28.27, 8, -89.59),
    (-7.29, 8, -86.69),
    (-3.84, 8, -88.14),
    (-7.29, 8, -89.59),
    (-28.27, 8, -103.09),
    (-31.72, 8, -101.64),
    (-28.27, 8, -100.19),
    (-24.82, 8, -101.64),
    (-10.74, 8, -88.14),
    (-31.72, 8, -88.14),
    (-10.74, 8, -101.64),
]))
chamfer.setExpression("Size", "Params.chamfer_size")

# Sketch on YZ plane
sketch10 = doc.addObject("Sketcher::SketchObject", "Sketch009")
body.addObject(sketch10)
sketch10.AttachmentSupport = (doc.YZ_Plane, [""])
sketch10.MapMode = "FlatFace"
sketch10.AttachmentOffset = App.Placement(V(0, 0, -52.792619), App.Rotation())
sketch10.addGeometry(Part.LineSegment(V(65, -79.889279, 0), V(55, -79.889279, 0)), False)
sketch10.addGeometry(Part.LineSegment(V(55, -79.889279, 0), V(55, 24.110721, 0)), False)
sketch10.addGeometry(Part.LineSegment(V(55, 24.110721, 0), V(65, 24.110721, 0)), False)
sketch10.addGeometry(Part.LineSegment(V(65, 24.110721, 0), V(65, -79.889279, 0)), False)
sketch10.addConstraint(Sketcher.Constraint("Coincident", 0, 2, 1, 1))
sketch10.addConstraint(Sketcher.Constraint("Coincident", 1, 2, 2, 1))
sketch10.addConstraint(Sketcher.Constraint("Coincident", 2, 2, 3, 1))
sketch10.addConstraint(Sketcher.Constraint("Coincident", 3, 2, 0, 1))
sketch10.addConstraint(Sketcher.Constraint("Horizontal", 0))
sketch10.addConstraint(Sketcher.Constraint("Vertical", 1))
sketch10.addConstraint(Sketcher.Constraint("Horizontal", 2))
sketch10.addConstraint(Sketcher.Constraint("Vertical", 3))
sketch10.addConstraint(Sketcher.Constraint("DistanceX", 0, 2, 0, 1, 10.0))
sketch10.addConstraint(Sketcher.Constraint("DistanceY", 1, 1, 1, 2, 104.0))
sketch10.addConstraint(Sketcher.Constraint("DistanceX", -1, 1, 0, 2, 55.0))
sketch10.addConstraint(Sketcher.Constraint("DistanceY", 0, 2, -1, 1, 79.889279))
sketch10.setExpression("Constraints[8]", "Params.sketch10_width")
sketch10.setExpression("Constraints[9]", "Params.sketch10_height")
pocket3 = doc.addObject("PartDesign::Pocket", "Pocket002")
body.addObject(pocket3)
pocket3.Profile = sketch10
pocket3.setExpression("Length", "Params.pocket3_length")
pocket3.Reversed = True

# Sketch on YZ plane
sketch11 = doc.addObject("Sketcher::SketchObject", "Sketch010")
body.addObject(sketch11)
sketch11.AttachmentSupport = (doc.YZ_Plane, [""])
sketch11.MapMode = "FlatFace"
sketch11.AttachmentOffset = App.Placement(V(0, 0, -62.792619), App.Rotation())
sketch11.addGeometry(Part.LineSegment(V(73, 24.110721, 0), V(-56, 24.110721, 0)), False)
sketch11.addGeometry(Part.LineSegment(V(-56, 24.110721, 0), V(-56, 32.110721, 0)), False)
sketch11.addGeometry(Part.LineSegment(V(-56, 32.110721, 0), V(73, 32.110721, 0)), False)
sketch11.addGeometry(Part.LineSegment(V(73, 32.110721, 0), V(73, 24.110721, 0)), False)
sketch11.addConstraint(Sketcher.Constraint("Coincident", 0, 2, 1, 1))
sketch11.addConstraint(Sketcher.Constraint("Coincident", 1, 2, 2, 1))
sketch11.addConstraint(Sketcher.Constraint("Coincident", 2, 2, 3, 1))
sketch11.addConstraint(Sketcher.Constraint("Coincident", 3, 2, 0, 1))
sketch11.addConstraint(Sketcher.Constraint("Horizontal", 0))
sketch11.addConstraint(Sketcher.Constraint("Vertical", 1))
sketch11.addConstraint(Sketcher.Constraint("Horizontal", 2))
sketch11.addConstraint(Sketcher.Constraint("Vertical", 3))
sketch11.addConstraint(Sketcher.Constraint("DistanceX", 0, 2, 0, 1, 129.0))
sketch11.addConstraint(Sketcher.Constraint("DistanceY", 1, 1, 1, 2, 8.0))
sketch11.addConstraint(Sketcher.Constraint("DistanceX", 0, 2, -1, 1, 56.0))
sketch11.addConstraint(Sketcher.Constraint("DistanceY", -1, 1, 0, 2, 24.110721))
sketch11.setExpression("Constraints[8]", "Params.sketch11_width")
sketch11.setExpression("Constraints[9]", "Params.sketch11_height")
pocket4 = doc.addObject("PartDesign::Pocket", "Pocket003")
body.addObject(pocket4)
pocket4.Profile = sketch11
pocket4.setExpression("Length", "Params.pocket4_length")
pocket4.Reversed = True

# Sketch on XY plane
sketch12 = doc.addObject("Sketcher::SketchObject", "Sketch011")
body.addObject(sketch12)
sketch12.AttachmentSupport = (doc.XY_Plane, [""])
sketch12.MapMode = "FlatFace"
sketch12.AttachmentOffset = App.Placement(V(0, 0, 24.110721), App.Rotation())
sketch12.addGeometry(Part.Circle(V(-42.792619, 4, 0), V(0, 0, 1), 2.8), False)
sketch12.addGeometry(Part.Circle(V(52.5, 4, 0), V(0, 0, 1), 2.8), False)
sketch12.addConstraint(Sketcher.Constraint("Equal", 0, 1))
sketch12.addConstraint(Sketcher.Constraint("Horizontal", 0, 3, 1, 3))
sketch12.addConstraint(Sketcher.Constraint("Diameter", 0, 5.6))
sketch12.addConstraint(Sketcher.Constraint("DistanceY", -1, 1, 0, 3, 4.0))
sketch12.addConstraint(Sketcher.Constraint("DistanceX", -1, 1, 1, 3, 52.5))
sketch12.addConstraint(Sketcher.Constraint("DistanceX", 0, 3, -1, 1, 42.792619))
sketch12.setExpression("Constraints[2]", "Params.sketch12_diameter")
doc.recompute()
hole4 = doc.addObject("PartDesign::Hole", "Hole003")
body.addObject(hole4)
hole4.Profile = sketch12
hole4.ThreadType = "None"
hole4.setExpression("Diameter", "Params.hole4_diameter")
hole4.DepthType = "Dimension"
hole4.setExpression("Depth", "Params.hole4_depth")
hole4.DrillPoint = "Angled"
hole4.DrillPointAngle = 118

# Sketch on XZ plane
sketch13 = doc.addObject("Sketcher::SketchObject", "Sketch012")
body.addObject(sketch13)
sketch13.AttachmentSupport = (doc.XZ_Plane, [""])
sketch13.MapMode = "FlatFace"
sketch13.addGeometry(Part.LineSegment(V(0.71, -79.889279, 0), V(0.71, -109.889279, 0)), False)
sketch13.addGeometry(Part.LineSegment(V(0.71, -109.889279, 0), V(62.5, -109.889279, 0)), False)
sketch13.addGeometry(Part.LineSegment(V(62.5, -109.889279, 0), V(62.5, -79.889279, 0)), False)
sketch13.addGeometry(Part.LineSegment(V(62.5, -79.889279, 0), V(0.71, -79.889279, 0)), False)
sketch13.addConstraint(Sketcher.Constraint("Coincident", 0, 2, 1, 1))
sketch13.addConstraint(Sketcher.Constraint("Coincident", 1, 2, 2, 1))
sketch13.addConstraint(Sketcher.Constraint("Coincident", 2, 2, 3, 1))
sketch13.addConstraint(Sketcher.Constraint("Coincident", 3, 2, 0, 1))
sketch13.addConstraint(Sketcher.Constraint("Vertical", 0))
sketch13.addConstraint(Sketcher.Constraint("Horizontal", 1))
sketch13.addConstraint(Sketcher.Constraint("Vertical", 2))
sketch13.addConstraint(Sketcher.Constraint("Horizontal", 3))
sketch13.addConstraint(Sketcher.Constraint("DistanceY", 0, 2, 0, 1, 30.0))
sketch13.addConstraint(Sketcher.Constraint("DistanceX", 1, 1, 1, 2, 61.79))
sketch13.addConstraint(Sketcher.Constraint("DistanceX", -1, 1, 1, 2, 62.5))
sketch13.addConstraint(Sketcher.Constraint("DistanceY", 0, 2, -1, 1, 109.889279))
sketch13.setExpression("Constraints[8]", "Params.sketch13_height")
sketch13.setExpression("Constraints[9]", "Params.sketch13_width")
pocket5 = doc.addObject("PartDesign::Pocket", "Pocket004")
body.addObject(pocket5)
pocket5.Profile = sketch13
pocket5.setExpression("Length", "Params.pocket5_length")

# Sketch on XZ plane
sketch14 = doc.addObject("Sketcher::SketchObject", "Sketch013")
body.addObject(sketch14)
sketch14.AttachmentSupport = (doc.XZ_Plane, [""])
sketch14.MapMode = "FlatFace"
sketch14.addGeometry(Part.LineSegment(V(-36.27, -109.889279, 0), V(-36.27, -79.889279, 0)), False)
sketch14.addGeometry(Part.LineSegment(V(-36.27, -79.889279, 0), V(-52.792619, -79.889279, 0)), False)
sketch14.addGeometry(Part.LineSegment(V(-52.792619, -79.889279, 0), V(-52.792619, -109.889279, 0)), False)
sketch14.addGeometry(Part.LineSegment(V(-52.792619, -109.889279, 0), V(-36.27, -109.889279, 0)), False)
sketch14.addConstraint(Sketcher.Constraint("Coincident", 0, 2, 1, 1))
sketch14.addConstraint(Sketcher.Constraint("Coincident", 1, 2, 2, 1))
sketch14.addConstraint(Sketcher.Constraint("Coincident", 2, 2, 3, 1))
sketch14.addConstraint(Sketcher.Constraint("Coincident", 3, 2, 0, 1))
sketch14.addConstraint(Sketcher.Constraint("Vertical", 0))
sketch14.addConstraint(Sketcher.Constraint("Horizontal", 1))
sketch14.addConstraint(Sketcher.Constraint("Vertical", 2))
sketch14.addConstraint(Sketcher.Constraint("Horizontal", 3))
sketch14.addConstraint(Sketcher.Constraint("DistanceY", 0, 1, 0, 2, 30.0))
sketch14.addConstraint(Sketcher.Constraint("DistanceX", 0, 2, -1, 1, 36.27))
sketch14.addConstraint(Sketcher.Constraint("DistanceX", 1, 2, 1, 1, 16.522619))
sketch14.addConstraint(Sketcher.Constraint("DistanceY", 0, 2, -1, 1, 79.889279))
sketch14.setExpression("Constraints[8]", "Params.sketch14_height")
pocket6 = doc.addObject("PartDesign::Pocket", "Pocket005")
body.addObject(pocket6)
pocket6.Profile = sketch14
pocket6.setExpression("Length", "Params.pocket6_length")
doc.recompute()

fillet4 = doc.addObject("PartDesign::Fillet", "Fillet003")
body.addObject(fillet4)
fillet4.Base = (pocket6, edges_at(pocket6, [
    (62.5, 4, -79.889),
    (0.71, 4, -109.889),
    (-36.27, 4, -109.889),
    (-52.793, 4, -79.889),
]))
fillet4.setExpression("Radius", "Params.fillet4_radius")
doc.recompute()

fillet5 = doc.addObject("PartDesign::Fillet", "Fillet004")
body.addObject(fillet5)
fillet5.Base = (fillet4, edges_at(fillet4, [(0.71, 4, -79.889), (-36.27, 4, -79.889)]))
fillet5.setExpression("Radius", "Params.fillet5_radius")

doc.recompute()
